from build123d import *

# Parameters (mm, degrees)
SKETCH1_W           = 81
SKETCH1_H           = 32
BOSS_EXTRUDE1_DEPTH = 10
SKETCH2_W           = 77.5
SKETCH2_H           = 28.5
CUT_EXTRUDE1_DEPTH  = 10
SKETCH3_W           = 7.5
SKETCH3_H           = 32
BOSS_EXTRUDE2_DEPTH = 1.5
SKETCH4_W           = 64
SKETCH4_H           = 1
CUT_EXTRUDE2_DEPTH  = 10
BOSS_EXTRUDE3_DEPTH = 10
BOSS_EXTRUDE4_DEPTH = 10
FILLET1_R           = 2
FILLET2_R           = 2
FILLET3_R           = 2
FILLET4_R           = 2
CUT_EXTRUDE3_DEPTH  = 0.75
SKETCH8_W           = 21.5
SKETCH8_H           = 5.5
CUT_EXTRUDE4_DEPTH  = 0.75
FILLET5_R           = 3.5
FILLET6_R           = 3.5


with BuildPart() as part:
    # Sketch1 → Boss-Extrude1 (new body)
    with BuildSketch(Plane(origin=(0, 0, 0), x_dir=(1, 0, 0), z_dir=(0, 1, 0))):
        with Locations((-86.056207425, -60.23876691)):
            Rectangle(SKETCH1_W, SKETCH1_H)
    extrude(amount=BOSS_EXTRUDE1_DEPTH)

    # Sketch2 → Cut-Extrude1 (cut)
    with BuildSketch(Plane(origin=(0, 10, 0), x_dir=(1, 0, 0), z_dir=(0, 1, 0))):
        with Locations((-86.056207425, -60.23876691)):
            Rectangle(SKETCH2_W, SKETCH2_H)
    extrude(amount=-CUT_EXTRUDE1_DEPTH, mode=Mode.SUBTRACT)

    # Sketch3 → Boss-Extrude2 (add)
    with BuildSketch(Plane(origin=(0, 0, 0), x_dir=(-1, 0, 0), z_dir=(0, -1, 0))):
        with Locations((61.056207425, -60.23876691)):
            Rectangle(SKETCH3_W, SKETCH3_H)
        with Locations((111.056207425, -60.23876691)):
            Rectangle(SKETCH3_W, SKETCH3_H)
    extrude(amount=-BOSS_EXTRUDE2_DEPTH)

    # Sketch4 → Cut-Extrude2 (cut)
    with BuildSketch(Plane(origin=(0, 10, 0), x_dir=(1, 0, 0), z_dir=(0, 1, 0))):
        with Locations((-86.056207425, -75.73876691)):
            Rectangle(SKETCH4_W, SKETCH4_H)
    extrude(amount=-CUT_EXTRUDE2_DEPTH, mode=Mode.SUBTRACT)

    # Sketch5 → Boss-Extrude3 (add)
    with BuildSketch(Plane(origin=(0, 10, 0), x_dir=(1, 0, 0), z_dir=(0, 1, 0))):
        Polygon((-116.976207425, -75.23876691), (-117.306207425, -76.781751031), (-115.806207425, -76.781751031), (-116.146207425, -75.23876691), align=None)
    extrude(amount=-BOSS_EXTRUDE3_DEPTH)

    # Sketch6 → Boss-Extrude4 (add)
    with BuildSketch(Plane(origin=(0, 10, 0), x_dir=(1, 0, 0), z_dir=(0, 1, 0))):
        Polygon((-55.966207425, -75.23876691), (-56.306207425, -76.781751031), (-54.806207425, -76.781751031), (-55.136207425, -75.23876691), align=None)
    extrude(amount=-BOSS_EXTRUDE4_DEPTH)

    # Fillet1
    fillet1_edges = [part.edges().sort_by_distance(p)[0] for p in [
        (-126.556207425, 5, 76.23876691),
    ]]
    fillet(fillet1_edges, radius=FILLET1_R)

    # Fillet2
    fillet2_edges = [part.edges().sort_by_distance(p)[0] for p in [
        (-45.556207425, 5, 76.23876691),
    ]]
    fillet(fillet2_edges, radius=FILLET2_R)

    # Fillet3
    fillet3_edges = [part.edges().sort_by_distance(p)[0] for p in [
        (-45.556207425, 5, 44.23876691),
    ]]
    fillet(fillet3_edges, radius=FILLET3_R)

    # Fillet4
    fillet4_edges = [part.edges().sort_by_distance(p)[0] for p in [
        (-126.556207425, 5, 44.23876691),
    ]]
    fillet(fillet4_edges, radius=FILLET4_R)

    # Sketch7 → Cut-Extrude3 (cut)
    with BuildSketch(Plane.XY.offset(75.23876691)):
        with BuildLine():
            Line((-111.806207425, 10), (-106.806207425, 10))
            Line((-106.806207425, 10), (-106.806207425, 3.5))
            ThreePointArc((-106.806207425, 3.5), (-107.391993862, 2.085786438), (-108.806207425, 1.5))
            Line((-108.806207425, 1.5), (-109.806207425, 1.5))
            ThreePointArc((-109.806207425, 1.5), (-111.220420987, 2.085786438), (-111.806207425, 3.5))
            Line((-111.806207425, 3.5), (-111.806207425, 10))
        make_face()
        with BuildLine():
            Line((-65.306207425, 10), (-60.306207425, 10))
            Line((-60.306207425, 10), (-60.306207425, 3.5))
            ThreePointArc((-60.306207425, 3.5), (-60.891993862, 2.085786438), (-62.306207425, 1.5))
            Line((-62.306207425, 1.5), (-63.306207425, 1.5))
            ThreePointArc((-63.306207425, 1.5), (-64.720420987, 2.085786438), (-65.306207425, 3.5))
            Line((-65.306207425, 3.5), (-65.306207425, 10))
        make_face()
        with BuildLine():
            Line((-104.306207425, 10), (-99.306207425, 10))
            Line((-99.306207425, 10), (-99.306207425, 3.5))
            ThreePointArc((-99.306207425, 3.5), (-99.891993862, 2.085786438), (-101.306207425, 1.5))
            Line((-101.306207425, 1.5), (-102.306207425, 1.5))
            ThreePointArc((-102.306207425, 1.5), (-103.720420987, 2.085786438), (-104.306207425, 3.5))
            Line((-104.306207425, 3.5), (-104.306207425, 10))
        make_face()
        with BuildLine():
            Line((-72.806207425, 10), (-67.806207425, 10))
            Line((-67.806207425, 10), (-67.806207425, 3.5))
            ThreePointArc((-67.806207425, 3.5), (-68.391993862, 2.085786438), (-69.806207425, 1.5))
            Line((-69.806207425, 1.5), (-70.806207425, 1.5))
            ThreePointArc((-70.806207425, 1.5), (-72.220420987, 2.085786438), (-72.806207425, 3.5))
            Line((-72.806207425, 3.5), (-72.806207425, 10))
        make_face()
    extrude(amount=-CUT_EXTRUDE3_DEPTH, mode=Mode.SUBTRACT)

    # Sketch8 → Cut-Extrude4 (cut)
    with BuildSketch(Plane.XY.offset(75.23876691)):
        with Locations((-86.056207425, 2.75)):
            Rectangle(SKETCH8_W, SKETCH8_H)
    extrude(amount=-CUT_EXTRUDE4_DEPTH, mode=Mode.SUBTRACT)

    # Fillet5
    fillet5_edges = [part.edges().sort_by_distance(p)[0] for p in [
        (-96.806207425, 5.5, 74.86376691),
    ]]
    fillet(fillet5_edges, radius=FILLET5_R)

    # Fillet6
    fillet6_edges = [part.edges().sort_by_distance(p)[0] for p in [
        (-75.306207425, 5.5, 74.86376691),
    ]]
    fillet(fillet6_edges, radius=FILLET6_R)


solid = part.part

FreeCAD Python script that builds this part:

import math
import FreeCAD as App
import Part
import Sketcher

V = App.Vector
Q = App.Units.Quantity


def edges_at(feature, points):
    """Names of the edges that pass closest to the given points."""
    edges = feature.Shape.Edges
    near = lambda p: min(range(len(edges)), key=lambda i: edges[i].distToShape(Part.Vertex(*p))[0])
    return sorted({f"Edge{near(p) + 1}" for p in points})

doc = App.newDocument("Part")
body = doc.addObject("PartDesign::Body", "Body")

# Sketch on XZ plane
sketch1 = body.newObject("Sketcher::SketchObject", "Sketch")
sketch1.AttachmentSupport = (doc.getObject("XZ_Plane"), [""])
sketch1.MapMode = "FlatFace"
sketch1.addGeometry(Part.LineSegment(V(-127, 44, 0), V(-127, 76, 0)), False)
sketch1.addGeometry(Part.LineSegment(V(-127, 76, 0), V(-46, 76, 0)), False)
sketch1.addGeometry(Part.LineSegment(V(-46, 76, 0), V(-46, 44, 0)), False)
sketch1.addGeometry(Part.LineSegment(V(-46, 44, 0), V(-127, 44, 0)), False)
sketch1.addConstraint(Sketcher.Constraint("Coincident", 0, 2, 1, 1))
sketch1.addConstraint(Sketcher.Constraint("Coincident", 1, 2, 2, 1))
sketch1.addConstraint(Sketcher.Constraint("Coincident", 2, 2, 3, 1))
sketch1.addConstraint(Sketcher.Constraint("Coincident", 3, 2, 0, 1))
sketch1.addConstraint(Sketcher.Constraint("Vertical", 0))
sketch1.addConstraint(Sketcher.Constraint("Horizontal", 1))
sketch1.addConstraint(Sketcher.Constraint("Vertical", 2))
sketch1.addConstraint(Sketcher.Constraint("Horizontal", 3))
sketch1.addConstraint(Sketcher.Constraint("DistanceX", 1, 1, 1, 2, Q("81 mm")))
sketch1.addConstraint(Sketcher.Constraint("DistanceY", 0, 1, 0, 2, Q("32 mm")))
sketch1.addConstraint(Sketcher.Constraint("DistanceX", 0, 2, -1, 1, Q("126.556207 mm")))
sketch1.addConstraint(Sketcher.Constraint("DistanceY", -1, 1, 0, 2, Q("76.238767 mm")))
pad1 = body.newObject("PartDesign::Pad", "Pad")
pad1.Profile = sketch1
pad1.Length = 10
pad1.Reversed = True

# Sketch on XZ plane
sketch2 = body.newObject("Sketcher::SketchObject", "Sketch001")
sketch2.AttachmentSupport = (doc.getObject("XZ_Plane"), [""])
sketch2.MapMode = "FlatFace"
sketch2.AttachmentOffset = App.Placement(V(0, 0, -10), App.Rotation())
sketch2.addGeometry(Part.LineSegment(V(-125, 46, 0), V(-125, 74, 0)), False)
sketch2.addGeometry(Part.LineSegment(V(-125, 74, 0), V(-47, 74, 0)), False)
sketch2.addGeometry(Part.LineSegment(V(-47, 74, 0), V(-47, 46, 0)), False)
sketch2.addGeometry(Part.LineSegment(V(-47, 46, 0), V(-125, 46, 0)), False)
sketch2.addConstraint(Sketcher.Constraint("Coincident", 0, 2, 1, 1))
sketch2.addConstraint(Sketcher.Constraint("Coincident", 1, 2, 2, 1))
sketch2.addConstraint(Sketcher.Constraint("Coincident", 2, 2, 3, 1))
sketch2.addConstraint(Sketcher.Constraint("Coincident", 3, 2, 0, 1))
sketch2.addConstraint(Sketcher.Constraint("Vertical", 0))
sketch2.addConstraint(Sketcher.Constraint("Horizontal", 1))
sketch2.addConstraint(Sketcher.Constraint("Vertical", 2))
sketch2.addConstraint(Sketcher.Constraint("Horizontal", 3))
sketch2.addConstraint(Sketcher.Constraint("DistanceX", 1, 1, 1, 2, Q("77.5 mm")))
sketch2.addConstraint(Sketcher.Constraint("DistanceY", 0, 1, 0, 2, Q("28.5 mm")))
sketch2.addConstraint(Sketcher.Constraint("DistanceX", 0, 2, -1, 1, Q("124.806207 mm")))
sketch2.addConstraint(Sketcher.Constraint("DistanceY", -1, 1, 0, 2, Q("74.488767 mm")))
pocket1 = body.newObject("PartDesign::Pocket", "Pocket")
pocket1.Profile = sketch2
pocket1.Length = 10
pocket1.Reversed = True

# Sketch on XZ plane
sketch3 = body.newObject("Sketcher::SketchObject", "Sketch002")
sketch3.AttachmentSupport = (doc.getObject("XZ_Plane"), [""])
sketch3.MapMode = "FlatFace"
sketch3.addGeometry(Part.LineSegment(V(-57, 44, 0), V(-57, 76, 0)), False)
sketch3.addGeometry(Part.LineSegment(V(-57, 76, 0), V(-65, 76, 0)), False)
sketch3.addGeometry(Part.LineSegment(V(-65, 76, 0), V(-65, 44, 0)), False)
sketch3.addGeometry(Part.LineSegment(V(-65, 44, 0), V(-57, 44, 0)), False)
sketch3.addGeometry(Part.LineSegment(V(-107, 44, 0), V(-107, 76, 0)), False)
sketch3.addGeometry(Part.LineSegment(V(-107, 76, 0), V(-115, 76, 0)), False)
sketch3.addGeometry(Part.LineSegment(V(-115, 76, 0), V(-115, 44, 0)), False)
sketch3.addGeometry(Part.LineSegment(V(-115, 44, 0), V(-107, 44, 0)), False)
sketch3.addConstraint(Sketcher.Constraint("Coincident", 0, 2, 1, 1))
sketch3.addConstraint(Sketcher.Constraint("Coincident", 1, 2, 2, 1))
sketch3.addConstraint(Sketcher.Constraint("Coincident", 2, 2, 3, 1))
sketch3.addConstraint(Sketcher.Constraint("Coincident", 3, 2, 0, 1))
sketch3.addConstraint(Sketcher.Constraint("Coincident", 4, 2, 5, 1))
sketch3.addConstraint(Sketcher.Constraint("Coincident", 5, 2, 6, 1))
sketch3.addConstraint(Sketcher.Constraint("Coincident", 6, 2, 7, 1))
sketch3.addConstraint(Sketcher.Constraint("Coincident", 7, 2, 4, 1))
sketch3.addConstraint(Sketcher.Constraint("Vertical", 0))
sketch3.addConstraint(Sketcher.Constraint("Horizontal", 1))
sketch3.addConstraint(Sketcher.Constraint("Vertical", 2))
sketch3.addConstraint(Sketcher.Constraint("Horizontal", 3))
sketch3.addConstraint(Sketcher.Constraint("Vertical", 4))
sketch3.addConstraint(Sketcher.Constraint("Horizontal", 5))
sketch3.addConstraint(Sketcher.Constraint("Vertical", 6))
sketch3.addConstraint(Sketcher.Constraint("Horizontal", 7))
sketch3.addConstraint(Sketcher.Constraint("Horizontal", 1, 2, 4, 2))
sketch3.addConstraint(Sketcher.Constraint("Horizontal", 3, 2, 6, 2))
sketch3.addConstraint(Sketcher.Constraint("Equal", 3, 5))
sketch3.addConstraint(Sketcher.Constraint("DistanceY", 0, 1, 0, 2, Q("32 mm")))
sketch3.addConstraint(Sketcher.Constraint("DistanceX", 1, 2, 1, 1, Q("7.5 mm")))
sketch3.addConstraint(Sketcher.Constraint("DistanceX", 4, 2, 0, 2, Q("50 mm")))
sketch3.addConstraint(Sketcher.Constraint("DistanceX", 0, 2, -1, 1, Q("57.306207 mm")))
sketch3.addConstraint(Sketcher.Constraint("DistanceY", -1, 1, 0, 2, Q("76.238767 mm")))
pad2 = body.newObject("PartDesign::Pad", "Pad001")
pad2.Profile = sketch3
pad2.Length = 1.5
pad2.Reversed = True

# Sketch on XZ plane
sketch4 = body.newObject("Sketcher::SketchObject", "Sketch003")
sketch4.AttachmentSupport = (doc.getObject("XZ_Plane"), [""])
sketch4.MapMode = "FlatFace"
sketch4.AttachmentOffset = App.Placement(V(0, 0, -10), App.Rotation())
sketch4.addGeometry(Part.LineSegment(V(-118.1, 75.2, 0), V(-118.1, 76.2, 0)), False)
sketch4.addGeometry(Part.LineSegment(V(-118.1, 76.2, 0), V(-54.1, 76.2, 0)), False)
sketch4.addGeometry(Part.LineSegment(V(-54.1, 76.2, 0), V(-54.1, 75.2, 0)), False)
sketch4.addGeometry(Part.LineSegment(V(-54.1, 75.2, 0), V(-118.1, 75.2, 0)), False)
sketch4.addConstraint(Sketcher.Constraint("Coincident", 0, 2, 1, 1))
sketch4.addConstraint(Sketcher.Constraint("Coincident", 1, 2, 2, 1))
sketch4.addConstraint(Sketcher.Constraint("Coincident", 2, 2, 3, 1))
sketch4.addConstraint(Sketcher.Constraint("Coincident", 3, 2, 0, 1))
sketch4.addConstraint(Sketcher.Constraint("Vertical", 0))
sketch4.addConstraint(Sketcher.Constraint("Horizontal", 1))
sketch4.addConstraint(Sketcher.Constraint("Vertical", 2))
sketch4.addConstraint(Sketcher.Constraint("Horizontal", 3))
sketch4.addConstraint(Sketcher.Constraint("DistanceX", 1, 1, 1, 2, Q("64 mm")))
sketch4.addConstraint(Sketcher.Constraint("DistanceY", 0, 1, 0, 2, Q("1 mm")))
sketch4.addConstraint(Sketcher.Constraint("DistanceX", 0, 2, -1, 1, Q("118.056207 mm")))
sketch4.addConstraint(Sketcher.Constraint("DistanceY", -1, 1, 0, 2, Q("76.238767 mm")))
pocket2 = body.newObject("PartDesign::Pocket", "Pocket001")
pocket2.Profile = sketch4
pocket2.Length = 10
pocket2.Reversed = True

# Sketch on XZ plane
sketch5 = body.newObject("Sketcher::SketchObject", "Sketch004")
sketch5.AttachmentSupport = (doc.getObject("XZ_Plane"), [""])
sketch5.MapMode = "FlatFace"
sketch5.AttachmentOffset = App.Placement(V(0, 0, -10), App.Rotation())
sketch5.addGeometry(Part.LineSegment(V(-117, 75.2, 0), V(-117.3, 76.8, 0)), False)
sketch5.addGeometry(Part.LineSegment(V(-117.3, 76.8, 0), V(-115.8, 76.8, 0)), False)
sketch5.addGeometry(Part.LineSegment(V(-115.8, 76.8, 0), V(-116.1, 75.2, 0)), False)
sketch5.addGeometry(Part.LineSegment(V(-116.1, 75.2, 0), V(-117, 75.2, 0)), False)
sketch5.addConstraint(Sketcher.Constraint("Coincident", 0, 2, 1, 1))
sketch5.addConstraint(Sketcher.Constraint("Coincident", 1, 2, 2, 1))
sketch5.addConstraint(Sketcher.Constraint("Coincident", 2, 2, 3, 1))
sketch5.addConstraint(Sketcher.Constraint("Coincident", 3, 2, 0, 1))
sketch5.addConstraint(Sketcher.Constraint("Horizontal", 1))
sketch5.addConstraint(Sketcher.Constraint("Horizontal", 3))
sketch5.addConstraint(Sketcher.Constraint("DistanceX", 1, 1, 1, 2, Q("1.5 mm")))
sketch5.addConstraint(Sketcher.Constraint("DistanceX", 3, 2, 3, 1, Q("0.83 mm")))
sketch5.addConstraint(Sketcher.Constraint("Distance", 2, Q("1.58 mm")))
sketch5.addConstraint(Sketcher.Constraint("DistanceX", 2, 2, 1, 2, Q("0.34 mm")))
sketch5.addConstraint(Sketcher.Constraint("DistanceY", -1, 1, 0, 2, Q("76.781751 mm")))
sketch5.addConstraint(Sketcher.Constraint("DistanceX", 0, 2, -1, 1, Q("117.306207 mm")))
pad3 = body.newObject("PartDesign::Pad", "Pad002")
pad3.Profile = sketch5
pad3.Length = 10

# Sketch on XZ plane
sketch6 = body.newObject("Sketcher::SketchObject", "Sketch005")
sketch6.AttachmentSupport = (doc.getObject("XZ_Plane"), [""])
sketch6.MapMode = "FlatFace"
sketch6.AttachmentOffset = App.Placement(V(0, 0, -10), App.Rotation())
sketch6.addGeometry(Part.LineSegment(V(-56, 75.2, 0), V(-56.3, 76.8, 0)), False)
sketch6.addGeometry(Part.LineSegment(V(-56.3, 76.8, 0), V(-54.8, 76.8, 0)), False)
sketch6.addGeometry(Part.LineSegment(V(-54.8, 76.8, 0), V(-55.1, 75.2, 0)), False)
sketch6.addGeometry(Part.LineSegment(V(-55.1, 75.2, 0), V(-56, 75.2, 0)), False)
sketch6.addConstraint(Sketcher.Constraint("Coincident", 0, 2, 1, 1))
sketch6.addConstraint(Sketcher.Constraint("Coincident", 1, 2, 2, 1))
sketch6.addConstraint(Sketcher.Constraint("Coincident", 2, 2, 3, 1))
sketch6.addConstraint(Sketcher.Constraint("Coincident", 3, 2, 0, 1))
sketch6.addConstraint(Sketcher.Constraint("Horizontal", 1))
sketch6.addConstraint(Sketcher.Constraint("Horizontal", 3))
sketch6.addConstraint(Sketcher.Constraint("DistanceX", 1, 1, 1, 2, Q("1.5 mm")))
sketch6.addConstraint(Sketcher.Constraint("DistanceX", 3, 2, 3, 1, Q("0.83 mm")))
sketch6.addConstraint(Sketcher.Constraint("Distance", 0, Q("1.58 mm")))
sketch6.addConstraint(Sketcher.Constraint("DistanceX", 2, 2, 1, 2, Q("0.33 mm")))
sketch6.addConstraint(Sketcher.Constraint("DistanceY", -1, 1, 0, 2, Q("76.781751 mm")))
sketch6.addConstraint(Sketcher.Constraint("DistanceX", 0, 2, -1, 1, Q("56.306207 mm")))
pad4 = body.newObject("PartDesign::Pad", "Pad003")
pad4.Profile = sketch6
pad4.Length = 10
doc.recompute()

fillet = body.newObject("PartDesign::Fillet", "Fillet")
fillet.Base = (pad4, edges_at(pad4, [(-126.556, 5, 76.239)]))
fillet.Radius = 2
doc.recompute()

fillet2 = body.newObject("PartDesign::Fillet", "Fillet001")
fillet2.Base = (fillet, edges_at(fillet, [(-45.556, 5, 76.239)]))
fillet2.Radius = 2
doc.recompute()

fillet3 = body.newObject("PartDesign::Fillet", "Fillet002")
fillet3.Base = (fillet2, edges_at(fillet2, [(-45.556, 5, 44.239)]))
fillet3.Radius = 2
doc.recompute()

fillet4 = body.newObject("PartDesign::Fillet", "Fillet003")
fillet4.Base = (fillet3, edges_at(fillet3, [(-126.556, 5, 44.239)]))
fillet4.Radius = 2

# Sketch on XY plane
sketch7 = body.newObject("Sketcher::SketchObject", "Sketch006")
sketch7.AttachmentSupport = (doc.getObject("XY_Plane"), [""])
sketch7.MapMode = "FlatFace"
sketch7.AttachmentOffset = App.Placement(V(0, 0, 75.238767), App.Rotation())
sketch7.addGeometry(Part.LineSegment(V(-106.8, 10, 0), V(-111.8, 10, 0)), False)
sketch7.addGeometry(Part.LineSegment(V(-111.8, 10, 0), V(-111.8, 3.5, 0)), False)
sketch7.addGeometry(Part.ArcOfCircle(Part.Circle(V(-109.8, 3.5, 0), V(0, 0, 1), 2), math.radians(-180), math.radians(-90)), False)
sketch7.addGeometry(Part.LineSegment(V(-109.8, 1.5, 0), V(-108.8, 1.5, 0)), False)
sketch7.addGeometry(Part.ArcOfCircle(Part.Circle(V(-108.8, 3.5, 0), V(0, 0, 1), 2), math.radians(-90), math.radians(0)), False)
sketch7.addGeometry(Part.LineSegment(V(-106.8, 3.5, 0), V(-106.8, 10, 0)), False)
sketch7.addGeometry(Part.LineSegment(V(-60.3, 10, 0), V(-65.3, 10, 0)), False)
sketch7.addGeometry(Part.LineSegment(V(-65.3, 10, 0), V(-65.3, 3.5, 0)), False)
sketch7.addGeometry(Part.ArcOfCircle(Part.Circle(V(-63.3, 3.5, 0), V(0, 0, 1), 2), math.radians(-180), math.radians(-90)), False)
sketch7.addGeometry(Part.LineSegment(V(-63.3, 1.5, 0), V(-62.3, 1.5, 0)), False)
sketch7.addGeometry(Part.ArcOfCircle(Part.Circle(V(-62.3, 3.5, 0), V(0, 0, 1), 2), math.radians(-90), math.radians(0)), False)
sketch7.addGeometry(Part.LineSegment(V(-60.3, 3.5, 0), V(-60.3, 10, 0)), False)
sketch7.addGeometry(Part.LineSegment(V(-99.3, 10, 0), V(-104.3, 10, 0)), False)
sketch7.addGeometry(Part.LineSegment(V(-104.3, 10, 0), V(-104.3, 3.5, 0)), False)
sketch7.addGeometry(Part.ArcOfCircle(Part.Circle(V(-102.3, 3.5, 0), V(0, 0, 1), 2), math.radians(-180), math.radians(-90)), False)
sketch7.addGeometry(Part.LineSegment(V(-102.3, 1.5, 0), V(-101.3, 1.5, 0)), False)
sketch7.addGeometry(Part.ArcOfCircle(Part.Circle(V(-101.3, 3.5, 0), V(0, 0, 1), 2), math.radians(-90), math.radians(0)), False)
sketch7.addGeometry(Part.LineSegment(V(-99.3, 3.5, 0), V(-99.3, 10, 0)), False)
sketch7.addGeometry(Part.LineSegment(V(-67.8, 10, 0), V(-72.8, 10, 0)), False)
sketch7.addGeometry(Part.LineSegment(V(-72.8, 10, 0), V(-72.8, 3.5, 0)), False)
sketch7.addGeometry(Part.ArcOfCircle(Part.Circle(V(-70.8, 3.5, 0), V(0, 0, 1), 2), math.radians(-180), math.radians(-90)), False)
sketch7.addGeometry(Part.LineSegment(V(-70.8, 1.5, 0), V(-69.8, 1.5, 0)), False)
sketch7.addGeometry(Part.ArcOfCircle(Part.Circle(V(-69.8, 3.5, 0), V(0, 0, 1), 2), math.radians(-90), math.radians(0)), False)
sketch7.addGeometry(Part.LineSegment(V(-67.8, 3.5, 0), V(-67.8, 10, 0)), False)
sketch7.addConstraint(Sketcher.Constraint("Coincident", 0, 2, 1, 1))
sketch7.addConstraint(Sketcher.Constraint("Tangent", 1, 2, 2, 1))
sketch7.addConstraint(Sketcher.Constraint("Tangent", 2, 2, 3, 1))
sketch7.addConstraint(Sketcher.Constraint("Tangent", 3, 2, 4, 1))
sketch7.addConstraint(Sketcher.Constraint("Tangent", 4, 2, 5, 1))
sketch7.addConstraint(Sketcher.Constraint("Coincident", 5, 2, 0, 1))
sketch7.addConstraint(Sketcher.Constraint("Coincident", 6, 2, 7, 1))
sketch7.addConstraint(Sketcher.Constraint("Tangent", 7, 2, 8, 1))
sketch7.addConstraint(Sketcher.Constraint("Tangent", 8, 2, 9, 1))
sketch7.addConstraint(Sketcher.Constraint("Tangent", 9, 2, 10, 1))
sketch7.addConstraint(Sketcher.Constraint("Tangent", 10, 2, 11, 1))
sketch7.addConstraint(Sketcher.Constraint("Coincident", 11, 2, 6, 1))
sketch7.addConstraint(Sketcher.Constraint("Coincident", 12, 2, 13, 1))
sketch7.addConstraint(Sketcher.Constraint("Tangent", 13, 2, 14, 1))
sketch7.addConstraint(Sketcher.Constraint("Tangent", 14, 2, 15, 1))
sketch7.addConstraint(Sketcher.Constraint("Tangent", 15, 2, 16, 1))
sketch7.addConstraint(Sketcher.Constraint("Tangent", 16, 2, 17, 1))
sketch7.addConstraint(Sketcher.Constraint("Coincident", 17, 2, 12, 1))
sketch7.addConstraint(Sketcher.Constraint("Coincident", 18, 2, 19, 1))
sketch7.addConstraint(Sketcher.Constraint("Tangent", 19, 2, 20, 1))
sketch7.addConstraint(Sketcher.Constraint("Tangent", 20, 2, 21, 1))
sketch7.addConstraint(Sketcher.Constraint("Tangent", 21, 2, 22, 1))
sketch7.addConstraint(Sketcher.Constraint("Tangent", 22, 2, 23, 1))
sketch7.addConstraint(Sketcher.Constraint("Coincident", 23, 2, 18, 1))
sketch7.addConstraint(Sketcher.Constraint("Horizontal", 0))
sketch7.addConstraint(Sketcher.Constraint("Vertical", 1))
sketch7.addConstraint(Sketcher.Constraint("Horizontal", 3))
sketch7.addConstraint(Sketcher.Constraint("Vertical", 5))
sketch7.addConstraint(Sketcher.Constraint("Horizontal", 6))
sketch7.addConstraint(Sketcher.Constraint("Vertical", 7))
sketch7.addConstraint(Sketcher.Constraint("Horizontal", 9))
sketch7.addConstraint(Sketcher.Constraint("Vertical", 11))
sketch7.addConstraint(Sketcher.Constraint("Horizontal", 12))
sketch7.addConstraint(Sketcher.Constraint("Vertical", 13))
sketch7.addConstraint(Sketcher.Constraint("Horizontal", 15))
sketch7.addConstraint(Sketcher.Constraint("Vertical", 17))
sketch7.addConstraint(Sketcher.Constraint("Horizontal", 18))
sketch7.addConstraint(Sketcher.Constraint("Vertical", 19))
sketch7.addConstraint(Sketcher.Constraint("Horizontal", 21))
sketch7.addConstraint(Sketcher.Constraint("Vertical", 23))
sketch7.addConstraint(Sketcher.Constraint("Equal", 2, 4))
sketch7.addConstraint(Sketcher.Constraint("Equal", 4, 8))
sketch7.addConstraint(Sketcher.Constraint("Equal", 8, 10))
sketch7.addConstraint(Sketcher.Constraint("Equal", 10, 14))
sketch7.addConstraint(Sketcher.Constraint("Equal", 14, 16))
sketch7.addConstraint(Sketcher.Constraint("Equal", 16, 20))
sketch7.addConstraint(Sketcher.Constraint("Equal", 20, 22))
sketch7.addConstraint(Sketcher.Constraint("Horizontal", 4, 3, 8, 3))
sketch7.addConstraint(Sketcher.Constraint("Horizontal", 10, 3, 14, 3))
sketch7.addConstraint(Sketcher.Constraint("Horizontal", 16, 3, 20, 3))
sketch7.addConstraint(Sketcher.Constraint("Horizontal", 5, 2, 6, 2))
sketch7.addConstraint(Sketcher.Constraint("Horizontal", 11, 2, 12, 2))
sketch7.addConstraint(Sketcher.Constraint("Horizontal", 17, 2, 18, 2))
sketch7.addConstraint(Sketcher.Constraint("Equal", 0, 6))
sketch7.addConstraint(Sketcher.Constraint("Equal", 6, 12))
sketch7.addConstraint(Sketcher.Constraint("Equal", 12, 18))
sketch7.addConstraint(Sketcher.Constraint("Radius", 2, Q("2 mm")))
sketch7.addConstraint(Sketcher.Constraint("DistanceX", 0, 2, 0, 1, Q("5 mm")))
sketch7.addConstraint(Sketcher.Constraint("DistanceY", 1, 2, 1, 1, Q("6.5 mm")))
sketch7.addConstraint(Sketcher.Constraint("DistanceY", -1, 1, 0, 2, Q("10 mm")))
sketch7.addConstraint(Sketcher.Constraint("DistanceX", 14, 3, 8, 3, Q("39 mm")))
sketch7.addConstraint(Sketcher.Constraint("DistanceX", 4, 3, 20, 3, Q("38 mm")))
sketch7.addConstraint(Sketcher.Constraint("DistanceX", 4, 3, 8, 3, Q("45.5 mm")))
sketch7.addConstraint(Sketcher.Constraint("DistanceX", 2, 3, -1, 1, Q("109.806207 mm")))
pocket3 = body.newObject("PartDesign::Pocket", "Pocket002")
pocket3.Profile = sketch7
pocket3.Length = 0.75

# Sketch on XY plane
sketch8 = body.newObject("Sketcher::SketchObject", "Sketch007")
sketch8.AttachmentSupport = (doc.getObject("XY_Plane"), [""])
sketch8.MapMode = "FlatFace"
sketch8.AttachmentOffset = App.Placement(V(0, 0, 75.238767), App.Rotation())
sketch8.addGeometry(Part.LineSegment(V(-97, 6, 0), V(-97, 0, 0)), False)
sketch8.addGeometry(Part.LineSegment(V(-97, 0, 0), V(-75, 0, 0)), False)
sketch8.addGeometry(Part.LineSegment(V(-75, 0, 0), V(-75, 6, 0)), False)
sketch8.addGeometry(Part.LineSegment(V(-75, 6, 0), V(-97, 6, 0)), False)
sketch8.addConstraint(Sketcher.Constraint("Coincident", 0, 2, 1, 1))
sketch8.addConstraint(Sketcher.Constraint("Coincident", 1, 2, 2, 1))
sketch8.addConstraint(Sketcher.Constraint("Coincident", 2, 2, 3, 1))
sketch8.addConstraint(Sketcher.Constraint("Coincident", 3, 2, 0, 1))
sketch8.addConstraint(Sketcher.Constraint("Vertical", 0))
sketch8.addConstraint(Sketcher.Constraint("Horizontal", 1))
sketch8.addConstraint(Sketcher.Constraint("Vertical", 2))
sketch8.addConstraint(Sketcher.Constraint("Horizontal", 3))
sketch8.addConstraint(Sketcher.Constraint("PointOnObject", 0, 2, -1))
sketch8.addConstraint(Sketcher.Constraint("DistanceX", 1, 1, 1, 2, Q("21.5 mm")))
sketch8.addConstraint(Sketcher.Constraint("DistanceY", 0, 2, 0, 1, Q("5.5 mm")))
sketch8.addConstraint(Sketcher.Constraint("DistanceX", 0, 2, -1, 1, Q("96.806207 mm")))
pocket4 = body.newObject("PartDesign::Pocket", "Pocket003")
pocket4.Profile = sketch8
pocket4.Length = 0.75
doc.recompute()

fillet5 = body.newObject("PartDesign::Fillet", "Fillet004")
fillet5.Base = (pocket4, edges_at(pocket4, [(-96.806, 5.5, 74.864)]))
fillet5.Radius = 3.5
doc.recompute()

fillet6 = body.newObject("PartDesign::Fillet", "Fillet005")
fillet6.Base = (fillet5, edges_at(fillet5, [(-75.306, 5.5, 74.864)]))
fillet6.Radius = 3.5

doc.recompute()
